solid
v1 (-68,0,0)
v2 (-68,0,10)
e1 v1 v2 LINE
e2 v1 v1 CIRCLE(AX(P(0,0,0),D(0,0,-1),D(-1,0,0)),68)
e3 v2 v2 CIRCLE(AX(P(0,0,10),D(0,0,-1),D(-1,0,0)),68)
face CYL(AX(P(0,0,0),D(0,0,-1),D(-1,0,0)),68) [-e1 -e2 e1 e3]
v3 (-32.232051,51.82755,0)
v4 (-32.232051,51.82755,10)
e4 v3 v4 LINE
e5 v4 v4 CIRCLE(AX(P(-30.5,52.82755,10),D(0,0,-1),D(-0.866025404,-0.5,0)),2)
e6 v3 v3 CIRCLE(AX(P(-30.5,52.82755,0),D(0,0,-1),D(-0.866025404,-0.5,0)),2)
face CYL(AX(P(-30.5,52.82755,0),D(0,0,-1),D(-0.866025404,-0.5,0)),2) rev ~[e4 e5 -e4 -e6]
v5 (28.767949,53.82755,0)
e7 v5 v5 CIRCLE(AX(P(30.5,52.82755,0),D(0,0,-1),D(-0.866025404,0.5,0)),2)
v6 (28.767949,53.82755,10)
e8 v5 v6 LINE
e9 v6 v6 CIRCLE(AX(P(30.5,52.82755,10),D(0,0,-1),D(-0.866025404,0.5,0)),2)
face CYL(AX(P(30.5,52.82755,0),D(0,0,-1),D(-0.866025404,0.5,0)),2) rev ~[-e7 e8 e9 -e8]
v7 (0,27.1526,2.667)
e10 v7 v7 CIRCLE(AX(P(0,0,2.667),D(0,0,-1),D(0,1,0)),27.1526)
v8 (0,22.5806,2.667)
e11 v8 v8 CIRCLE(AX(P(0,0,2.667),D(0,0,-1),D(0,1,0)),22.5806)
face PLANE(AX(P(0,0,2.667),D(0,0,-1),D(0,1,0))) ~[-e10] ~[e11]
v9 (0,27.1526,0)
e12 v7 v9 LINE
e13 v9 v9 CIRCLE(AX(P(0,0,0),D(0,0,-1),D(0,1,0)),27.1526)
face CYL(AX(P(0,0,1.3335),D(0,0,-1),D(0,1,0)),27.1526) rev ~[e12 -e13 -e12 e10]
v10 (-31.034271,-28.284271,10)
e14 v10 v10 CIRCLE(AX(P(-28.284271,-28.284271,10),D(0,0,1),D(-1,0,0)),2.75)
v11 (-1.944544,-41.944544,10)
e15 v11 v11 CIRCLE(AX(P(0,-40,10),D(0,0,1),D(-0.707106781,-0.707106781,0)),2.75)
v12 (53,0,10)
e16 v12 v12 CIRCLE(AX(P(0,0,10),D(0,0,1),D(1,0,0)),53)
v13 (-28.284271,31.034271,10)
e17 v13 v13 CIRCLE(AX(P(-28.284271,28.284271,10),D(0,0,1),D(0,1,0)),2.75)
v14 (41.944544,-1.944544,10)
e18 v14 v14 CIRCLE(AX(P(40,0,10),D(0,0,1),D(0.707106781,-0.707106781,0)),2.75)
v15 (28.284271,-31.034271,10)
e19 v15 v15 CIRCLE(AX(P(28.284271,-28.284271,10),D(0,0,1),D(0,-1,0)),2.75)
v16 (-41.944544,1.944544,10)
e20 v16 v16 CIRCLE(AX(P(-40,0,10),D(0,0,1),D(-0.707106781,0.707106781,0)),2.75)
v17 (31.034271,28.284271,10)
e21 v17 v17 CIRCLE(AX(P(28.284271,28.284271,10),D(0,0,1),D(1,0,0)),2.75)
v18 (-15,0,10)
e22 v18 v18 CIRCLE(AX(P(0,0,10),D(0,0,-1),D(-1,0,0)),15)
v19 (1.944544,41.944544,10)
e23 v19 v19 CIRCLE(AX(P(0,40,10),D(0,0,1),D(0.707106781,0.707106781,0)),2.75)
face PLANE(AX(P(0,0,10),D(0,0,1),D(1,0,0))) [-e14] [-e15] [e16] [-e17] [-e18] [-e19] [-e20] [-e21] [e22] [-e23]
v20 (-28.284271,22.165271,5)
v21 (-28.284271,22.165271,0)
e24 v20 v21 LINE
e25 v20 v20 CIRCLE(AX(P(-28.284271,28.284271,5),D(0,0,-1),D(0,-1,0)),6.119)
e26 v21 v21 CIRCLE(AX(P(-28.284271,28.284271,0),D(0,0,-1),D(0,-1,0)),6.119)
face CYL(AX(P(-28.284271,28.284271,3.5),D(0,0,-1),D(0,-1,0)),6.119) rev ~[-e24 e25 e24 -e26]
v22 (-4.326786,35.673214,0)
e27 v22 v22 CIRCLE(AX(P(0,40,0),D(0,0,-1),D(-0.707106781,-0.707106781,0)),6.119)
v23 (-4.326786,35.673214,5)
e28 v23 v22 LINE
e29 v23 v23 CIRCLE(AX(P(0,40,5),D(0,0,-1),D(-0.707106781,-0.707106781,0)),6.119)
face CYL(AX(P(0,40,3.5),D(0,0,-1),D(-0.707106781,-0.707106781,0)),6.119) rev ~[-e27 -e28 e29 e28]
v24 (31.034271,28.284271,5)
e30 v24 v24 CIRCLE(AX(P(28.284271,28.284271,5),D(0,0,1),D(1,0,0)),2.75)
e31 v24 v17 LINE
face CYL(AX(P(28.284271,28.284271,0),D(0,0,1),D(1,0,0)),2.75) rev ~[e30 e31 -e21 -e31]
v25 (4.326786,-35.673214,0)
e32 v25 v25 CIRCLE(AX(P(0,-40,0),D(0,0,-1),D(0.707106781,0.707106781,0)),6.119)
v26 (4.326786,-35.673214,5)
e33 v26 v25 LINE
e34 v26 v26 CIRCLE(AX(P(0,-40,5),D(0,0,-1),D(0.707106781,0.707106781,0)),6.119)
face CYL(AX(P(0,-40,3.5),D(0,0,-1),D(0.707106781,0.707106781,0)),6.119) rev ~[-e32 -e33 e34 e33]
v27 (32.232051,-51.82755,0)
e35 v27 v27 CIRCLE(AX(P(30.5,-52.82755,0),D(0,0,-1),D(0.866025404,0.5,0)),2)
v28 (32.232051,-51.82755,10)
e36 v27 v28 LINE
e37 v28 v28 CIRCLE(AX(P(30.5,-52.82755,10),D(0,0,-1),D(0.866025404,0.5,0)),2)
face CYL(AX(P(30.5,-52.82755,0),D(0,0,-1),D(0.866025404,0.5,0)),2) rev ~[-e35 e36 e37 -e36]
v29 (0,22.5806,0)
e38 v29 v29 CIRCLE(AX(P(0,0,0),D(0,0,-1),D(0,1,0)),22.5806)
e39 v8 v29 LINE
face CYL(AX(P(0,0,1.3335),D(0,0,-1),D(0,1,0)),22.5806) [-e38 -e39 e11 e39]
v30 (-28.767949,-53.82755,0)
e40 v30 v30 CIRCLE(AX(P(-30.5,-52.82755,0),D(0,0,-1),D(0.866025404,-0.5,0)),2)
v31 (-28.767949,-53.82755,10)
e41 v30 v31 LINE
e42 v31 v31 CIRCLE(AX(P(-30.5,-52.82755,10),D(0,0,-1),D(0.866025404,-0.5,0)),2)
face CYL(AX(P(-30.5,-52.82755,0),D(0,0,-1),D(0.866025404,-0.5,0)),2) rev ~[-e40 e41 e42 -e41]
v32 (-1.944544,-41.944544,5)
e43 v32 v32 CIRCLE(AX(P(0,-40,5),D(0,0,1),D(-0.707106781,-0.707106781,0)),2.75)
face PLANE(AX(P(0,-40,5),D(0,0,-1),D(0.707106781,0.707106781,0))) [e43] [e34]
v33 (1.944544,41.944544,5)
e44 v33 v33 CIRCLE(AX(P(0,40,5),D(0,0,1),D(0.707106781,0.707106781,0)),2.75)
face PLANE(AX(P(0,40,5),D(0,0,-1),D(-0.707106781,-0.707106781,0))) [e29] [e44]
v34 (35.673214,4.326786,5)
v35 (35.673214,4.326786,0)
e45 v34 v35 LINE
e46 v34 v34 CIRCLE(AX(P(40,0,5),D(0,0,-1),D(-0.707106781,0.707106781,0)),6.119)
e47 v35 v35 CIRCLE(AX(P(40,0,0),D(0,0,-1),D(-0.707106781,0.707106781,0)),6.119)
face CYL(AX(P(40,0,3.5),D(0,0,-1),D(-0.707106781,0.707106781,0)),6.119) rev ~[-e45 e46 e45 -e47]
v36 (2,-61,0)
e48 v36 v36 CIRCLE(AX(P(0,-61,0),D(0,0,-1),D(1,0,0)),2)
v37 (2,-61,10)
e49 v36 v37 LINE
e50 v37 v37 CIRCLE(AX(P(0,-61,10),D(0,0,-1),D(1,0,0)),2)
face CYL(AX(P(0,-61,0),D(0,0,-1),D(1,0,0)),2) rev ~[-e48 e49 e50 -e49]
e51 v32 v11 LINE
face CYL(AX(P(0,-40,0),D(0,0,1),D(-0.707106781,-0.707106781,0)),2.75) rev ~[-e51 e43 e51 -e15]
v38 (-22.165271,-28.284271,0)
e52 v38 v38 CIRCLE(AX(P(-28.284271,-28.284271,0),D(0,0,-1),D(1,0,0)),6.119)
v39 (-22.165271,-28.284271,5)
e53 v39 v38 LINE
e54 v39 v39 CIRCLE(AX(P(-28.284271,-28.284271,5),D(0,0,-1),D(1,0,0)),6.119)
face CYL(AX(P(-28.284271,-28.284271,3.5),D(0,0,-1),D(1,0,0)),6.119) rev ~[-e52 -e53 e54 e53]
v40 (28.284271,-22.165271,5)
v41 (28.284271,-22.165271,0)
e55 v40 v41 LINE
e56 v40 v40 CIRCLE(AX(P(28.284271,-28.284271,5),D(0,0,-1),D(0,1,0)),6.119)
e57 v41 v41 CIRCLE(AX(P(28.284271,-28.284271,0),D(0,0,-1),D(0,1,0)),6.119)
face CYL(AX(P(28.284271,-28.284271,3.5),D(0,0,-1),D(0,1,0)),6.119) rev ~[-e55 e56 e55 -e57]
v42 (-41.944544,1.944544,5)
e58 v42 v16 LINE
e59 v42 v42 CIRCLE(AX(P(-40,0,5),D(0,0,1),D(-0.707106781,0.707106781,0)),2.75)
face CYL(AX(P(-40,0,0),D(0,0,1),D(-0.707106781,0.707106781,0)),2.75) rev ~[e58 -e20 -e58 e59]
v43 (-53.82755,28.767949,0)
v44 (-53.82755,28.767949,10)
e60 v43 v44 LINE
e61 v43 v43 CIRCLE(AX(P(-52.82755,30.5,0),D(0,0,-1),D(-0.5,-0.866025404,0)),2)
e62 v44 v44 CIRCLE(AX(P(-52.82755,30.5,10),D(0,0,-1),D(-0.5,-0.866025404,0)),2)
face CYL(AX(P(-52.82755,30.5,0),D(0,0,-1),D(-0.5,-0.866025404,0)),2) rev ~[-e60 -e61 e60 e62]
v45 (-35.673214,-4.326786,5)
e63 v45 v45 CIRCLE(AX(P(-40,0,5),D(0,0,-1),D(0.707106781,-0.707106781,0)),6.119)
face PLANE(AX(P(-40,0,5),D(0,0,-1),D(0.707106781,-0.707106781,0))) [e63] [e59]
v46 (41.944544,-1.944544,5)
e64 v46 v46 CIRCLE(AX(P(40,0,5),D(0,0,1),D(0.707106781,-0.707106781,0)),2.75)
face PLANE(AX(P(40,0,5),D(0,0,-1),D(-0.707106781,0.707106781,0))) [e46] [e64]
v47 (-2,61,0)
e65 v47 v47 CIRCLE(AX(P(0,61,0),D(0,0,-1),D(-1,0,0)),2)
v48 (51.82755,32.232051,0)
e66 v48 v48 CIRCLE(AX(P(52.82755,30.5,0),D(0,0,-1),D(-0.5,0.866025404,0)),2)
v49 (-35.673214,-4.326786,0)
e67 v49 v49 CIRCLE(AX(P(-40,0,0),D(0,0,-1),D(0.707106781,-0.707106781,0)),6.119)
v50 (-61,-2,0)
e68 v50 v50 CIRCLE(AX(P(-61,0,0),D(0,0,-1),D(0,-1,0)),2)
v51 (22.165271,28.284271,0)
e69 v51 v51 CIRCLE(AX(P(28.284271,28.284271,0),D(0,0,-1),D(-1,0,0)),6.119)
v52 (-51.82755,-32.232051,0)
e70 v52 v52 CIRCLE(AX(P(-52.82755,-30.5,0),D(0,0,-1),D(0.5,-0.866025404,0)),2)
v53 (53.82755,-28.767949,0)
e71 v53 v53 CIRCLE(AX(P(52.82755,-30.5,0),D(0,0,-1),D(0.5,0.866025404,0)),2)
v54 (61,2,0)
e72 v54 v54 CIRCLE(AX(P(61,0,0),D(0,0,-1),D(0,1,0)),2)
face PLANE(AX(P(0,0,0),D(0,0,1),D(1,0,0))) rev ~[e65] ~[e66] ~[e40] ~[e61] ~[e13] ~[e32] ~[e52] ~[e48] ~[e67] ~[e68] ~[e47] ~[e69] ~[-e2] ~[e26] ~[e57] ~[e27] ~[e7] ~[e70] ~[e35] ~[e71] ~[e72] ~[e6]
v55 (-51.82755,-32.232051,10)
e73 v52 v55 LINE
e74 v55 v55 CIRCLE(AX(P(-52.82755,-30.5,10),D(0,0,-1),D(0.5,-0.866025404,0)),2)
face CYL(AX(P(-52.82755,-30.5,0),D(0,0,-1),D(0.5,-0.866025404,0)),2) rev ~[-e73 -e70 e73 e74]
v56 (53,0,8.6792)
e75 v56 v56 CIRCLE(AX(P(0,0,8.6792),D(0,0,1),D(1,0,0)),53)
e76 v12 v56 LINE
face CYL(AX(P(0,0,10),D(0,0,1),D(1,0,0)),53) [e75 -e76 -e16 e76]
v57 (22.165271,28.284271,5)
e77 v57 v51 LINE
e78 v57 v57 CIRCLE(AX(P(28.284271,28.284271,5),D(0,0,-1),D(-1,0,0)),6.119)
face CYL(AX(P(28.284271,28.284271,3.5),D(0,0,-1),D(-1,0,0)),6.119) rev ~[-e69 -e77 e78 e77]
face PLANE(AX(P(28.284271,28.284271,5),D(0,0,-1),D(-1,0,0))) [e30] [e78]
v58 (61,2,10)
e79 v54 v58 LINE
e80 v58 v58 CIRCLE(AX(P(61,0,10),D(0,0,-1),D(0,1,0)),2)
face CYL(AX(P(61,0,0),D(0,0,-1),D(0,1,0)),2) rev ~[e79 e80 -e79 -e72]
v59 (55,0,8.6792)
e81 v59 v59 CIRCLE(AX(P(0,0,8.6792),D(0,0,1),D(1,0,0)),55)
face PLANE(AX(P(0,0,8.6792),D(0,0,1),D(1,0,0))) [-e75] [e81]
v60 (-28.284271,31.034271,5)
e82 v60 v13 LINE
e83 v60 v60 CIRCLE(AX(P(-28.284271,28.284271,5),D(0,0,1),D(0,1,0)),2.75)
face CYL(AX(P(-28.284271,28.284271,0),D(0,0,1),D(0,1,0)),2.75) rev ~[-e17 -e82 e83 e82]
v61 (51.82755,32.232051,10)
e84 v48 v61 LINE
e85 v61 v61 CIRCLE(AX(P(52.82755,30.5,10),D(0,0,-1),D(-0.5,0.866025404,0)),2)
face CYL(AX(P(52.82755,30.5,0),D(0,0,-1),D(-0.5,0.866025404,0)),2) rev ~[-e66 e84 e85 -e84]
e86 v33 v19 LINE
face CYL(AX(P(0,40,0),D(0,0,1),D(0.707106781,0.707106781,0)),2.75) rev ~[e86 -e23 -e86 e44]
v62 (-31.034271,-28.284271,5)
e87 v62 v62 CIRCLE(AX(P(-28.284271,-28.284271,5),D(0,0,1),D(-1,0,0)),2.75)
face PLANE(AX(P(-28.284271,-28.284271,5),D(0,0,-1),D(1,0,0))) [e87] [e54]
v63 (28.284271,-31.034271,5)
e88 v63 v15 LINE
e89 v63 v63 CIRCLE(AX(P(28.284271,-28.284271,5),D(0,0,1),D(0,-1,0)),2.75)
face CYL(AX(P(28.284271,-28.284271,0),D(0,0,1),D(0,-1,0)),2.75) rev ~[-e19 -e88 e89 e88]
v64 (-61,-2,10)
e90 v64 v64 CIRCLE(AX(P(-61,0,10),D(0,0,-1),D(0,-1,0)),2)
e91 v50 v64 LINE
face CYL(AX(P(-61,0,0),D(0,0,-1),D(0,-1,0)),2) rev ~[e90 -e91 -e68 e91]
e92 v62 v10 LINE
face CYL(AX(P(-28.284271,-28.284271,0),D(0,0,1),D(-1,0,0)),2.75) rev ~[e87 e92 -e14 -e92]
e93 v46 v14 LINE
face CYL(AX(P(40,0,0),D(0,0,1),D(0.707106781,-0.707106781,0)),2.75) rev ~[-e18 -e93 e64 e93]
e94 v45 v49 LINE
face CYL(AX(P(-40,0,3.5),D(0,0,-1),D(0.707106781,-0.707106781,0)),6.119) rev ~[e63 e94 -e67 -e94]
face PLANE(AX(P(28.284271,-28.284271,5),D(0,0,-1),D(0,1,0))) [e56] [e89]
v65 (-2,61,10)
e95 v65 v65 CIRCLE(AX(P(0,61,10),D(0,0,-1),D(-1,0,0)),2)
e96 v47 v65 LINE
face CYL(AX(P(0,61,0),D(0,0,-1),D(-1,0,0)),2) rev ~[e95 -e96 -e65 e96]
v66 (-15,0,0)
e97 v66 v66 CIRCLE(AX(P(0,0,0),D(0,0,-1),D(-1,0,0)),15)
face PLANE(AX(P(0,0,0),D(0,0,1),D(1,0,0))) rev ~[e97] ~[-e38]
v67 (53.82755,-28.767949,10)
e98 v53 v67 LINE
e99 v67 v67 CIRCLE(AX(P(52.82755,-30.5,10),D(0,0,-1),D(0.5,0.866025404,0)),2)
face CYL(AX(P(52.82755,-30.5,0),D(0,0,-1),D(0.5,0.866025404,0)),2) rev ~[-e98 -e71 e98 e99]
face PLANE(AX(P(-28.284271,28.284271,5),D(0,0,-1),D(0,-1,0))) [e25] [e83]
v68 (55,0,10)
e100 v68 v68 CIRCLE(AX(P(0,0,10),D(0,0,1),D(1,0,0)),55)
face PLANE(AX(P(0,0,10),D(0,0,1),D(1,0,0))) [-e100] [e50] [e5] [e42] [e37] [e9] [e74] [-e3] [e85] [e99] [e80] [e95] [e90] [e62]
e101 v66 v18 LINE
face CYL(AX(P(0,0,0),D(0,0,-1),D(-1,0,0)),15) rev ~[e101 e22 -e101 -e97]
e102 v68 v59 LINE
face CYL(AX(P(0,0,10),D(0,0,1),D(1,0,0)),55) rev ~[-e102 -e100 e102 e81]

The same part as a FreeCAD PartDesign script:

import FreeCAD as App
import Part
import Sketcher

doc = App.newDocument("Part")
body = doc.addObject("PartDesign::Body", "Body")

sketch1 = body.newObject("Sketcher::SketchObject", "Sketch")
sketch1.AttachmentSupport = (doc.getObject("XY_Plane"), [""])
sketch1.MapMode = "FlatFace"
sketch1.addGeometry(Part.Circle(App.Vector(0, 0, 0), App.Vector(0, 0, 1), 75), False)
sketch1.addConstraint(Sketcher.Constraint("Coincident", 0, 3, -1, 1))
sketch1.addConstraint(Sketcher.Constraint("Diameter", 0, 150.0))
pad1 = body.newObject("PartDesign::Pad", "Pad")
pad1.Profile = sketch1
pad1.Length = 10

sketch2 = body.newObject("Sketcher::SketchObject", "Sketch001")
sketch2.AttachmentSupport = (doc.getObject("XY_Plane"), [""])
sketch2.MapMode = "FlatFace"
sketch2.AttachmentOffset = App.Placement(App.Vector(0, 0, 10), App.Rotation())
sketch2.addGeometry(Part.Circle(App.Vector(0, 0, 0), App.Vector(0, 0, 1), 4.5), False)
sketch2.addConstraint(Sketcher.Constraint("Coincident", 0, 3, -1, 1))
sketch2.addConstraint(Sketcher.Constraint("Diameter", 0, 9.0))
pocket1 = body.newObject("PartDesign::Pocket", "Pocket")
pocket1.Profile = sketch2
pocket1.Length = 10

sketch3 = body.newObject("Sketcher::SketchObject", "Sketch002")
sketch3.AttachmentSupport = (doc.getObject("YZ_Plane"), [""])
sketch3.MapMode = "FlatFace"
sketch3.addGeometry(Part.LineSegment(App.Vector(27.2, 2.7, 0), App.Vector(22.6, 2.7, 0)), False)
sketch3.addGeometry(Part.LineSegment(App.Vector(22.6, 2.7, 0), App.Vector(22.6, 0, 0)), False)
sketch3.addGeometry(Part.LineSegment(App.Vector(22.6, 0, 0), App.Vector(27.2, 0, 0)), False)
sketch3.addGeometry(Part.LineSegment(App.Vector(27.2, 0, 0), App.Vector(27.2, 2.7, 0)), False)
sketch3.addConstraint(Sketcher.Constraint("Coincident", 0, 2, 1, 1))
sketch3.addConstraint(Sketcher.Constraint("Coincident", 1, 2, 2, 1))
sketch3.addConstraint(Sketcher.Constraint("Coincident", 2, 2, 3, 1))
sketch3.addConstraint(Sketcher.Constraint("Coincident", 3, 2, 0, 1))
sketch3.addConstraint(Sketcher.Constraint("Horizontal", 0))
sketch3.addConstraint(Sketcher.Constraint("Vertical", 1))
sketch3.addConstraint(Sketcher.Constraint("Horizontal", 2))
sketch3.addConstraint(Sketcher.Constraint("Vertical", 3))
sketch3.addConstraint(Sketcher.Constraint("PointOnObject", 1, 2, -1))
sketch3.addConstraint(Sketcher.Constraint("DistanceX", 0, 2, 0, 1, 4.572))
sketch3.addConstraint(Sketcher.Constraint("DistanceY", 1, 2, 1, 1, 2.667))
sketch3.addConstraint(Sketcher.Constraint("DistanceX", -1, 1, 0, 2, 22.5806))
groove = body.newObject("PartDesign::Groove", "Groove")
groove.Profile = sketch3
groove.ReferenceAxis = (sketch3, ["V_Axis"])
groove.Angle = 360

sketch4 = body.newObject("Sketcher::SketchObject", "Sketch003")
sketch4.AttachmentSupport = (doc.getObject("XY_Plane"), [""])
sketch4.MapMode = "FlatFace"
sketch4.AttachmentOffset = App.Placement(App.Vector(0, 0, 10), App.Rotation())
sketch4.addGeometry(Part.Circle(App.Vector(0, 0, 0), App.Vector(0, 0, 1), 55), False)
sketch4.addGeometry(Part.Circle(App.Vector(0, 0, 0), App.Vector(0, 0, 1), 53), False)
sketch4.addConstraint(Sketcher.Constraint("Coincident", 0, 3, -1, 1))
sketch4.addConstraint(Sketcher.Constraint("Coincident", 1, 3, -1, 1))
sketch4.addConstraint(Sketcher.Constraint("Diameter", 0, 110.0))
sketch4.addConstraint(Sketcher.Constraint("Diameter", 1, 106.0))
pocket2 = body.newObject("PartDesign::Pocket", "Pocket001")
pocket2.Profile = sketch4
pocket2.Length = 1.3208

sketch5 = body.newObject("Sketcher::SketchObject", "Sketch004")
sketch5.AttachmentSupport = (doc.getObject("XY_Plane"), [""])
sketch5.MapMode = "FlatFace"
sketch5.addGeometry(Part.Circle(App.Vector(0, 61, 0), App.Vector(0, 0, 1), 2), False)
sketch5.addConstraint(Sketcher.Constraint("PointOnObject", 0, 3, -2))
sketch5.addConstraint(Sketcher.Constraint("Diameter", 0, 4.0))
sketch5.addConstraint(Sketcher.Constraint("DistanceY", -1, 1, 0, 3, 61.0))
pocket3 = body.newObject("PartDesign::Pocket", "Pocket002")
pocket3.Profile = sketch5
pocket3.Type = "ThroughAll"
pocket3.Reversed = True

sketch6 = body.newObject("Sketcher::SketchObject", "Sketch005")
sketch6.AttachmentSupport = (doc.getObject("XY_Plane"), [""])
sketch6.MapMode = "FlatFace"
sketch6.addGeometry(Part.Circle(App.Vector(28.3, 28.3, 0), App.Vector(0, 0, 1), 2.8), False)
sketch6.addConstraint(Sketcher.Constraint("Diameter", 0, 5.5))
sketch6.addConstraint(Sketcher.Constraint("DistanceX", -1, 1, 0, 3, 28.284271))
sketch6.addConstraint(Sketcher.Constraint("DistanceY", -1, 1, 0, 3, 28.284271))
doc.recompute()
hole = body.newObject("PartDesign::Hole", "Hole")
hole.Profile = sketch6
hole.ThreadType = "None"
hole.Diameter = 5.5
hole.DepthType = "ThroughAll"
hole.HoleCutType = "Counterbore"
hole.HoleCutDiameter = 12.238
hole.HoleCutDepth = 3.5
hole.Reversed = True

sketch7 = body.newObject("Sketcher::SketchObject", "Sketch006")
sketch7.AttachmentSupport = (doc.getObject("XY_Plane"), [""])
sketch7.MapMode = "FlatFace"
sketch7.addGeometry(Part.Circle(App.Vector(0, 0, 0), App.Vector(0, 0, 1), 75), False)
sketch7.addGeometry(Part.Circle(App.Vector(0, 0, 0), App.Vector(0, 0, 1), 68), False)
sketch7.addConstraint(Sketcher.Constraint("Coincident", 0, 3, -1, 1))
sketch7.addConstraint(Sketcher.Constraint("Coincident", 1, 3, -1, 1))
sketch7.addConstraint(Sketcher.Constraint("Diameter", 0, 150.0))
sketch7.addConstraint(Sketcher.Constraint("Diameter", 1, 136.0))
pocket4 = body.newObject("PartDesign::Pocket", "Pocket003")
pocket4.Profile = sketch7
pocket4.Length = 10
pocket4.Reversed = True
doc.recompute()

polarpattern = body.newObject("PartDesign::PolarPattern", "PolarPattern")
polarpattern.Originals = [pocket3]
polarpattern.Axis = (doc.getObject("Z_Axis"), [""])
polarpattern.Angle = 360
polarpattern.Occurrences = 12
body.Tip = polarpattern
doc.recompute()

polarpattern2 = body.newObject("PartDesign::PolarPattern", "PolarPattern001")
polarpattern2.Originals = [hole]
polarpattern2.Axis = (doc.getObject("Z_Axis"), [""])
polarpattern2.Angle = 360
polarpattern2.Occurrences = 8
body.Tip = polarpattern2

sketch8 = body.newObject("Sketcher::SketchObject", "Sketch007")
sketch8.AttachmentSupport = (doc.getObject("XY_Plane"), [""])
sketch8.MapMode = "FlatFace"
sketch8.addGeometry(Part.Circle(App.Vector(28, 28, 0), App.Vector(0, 0, 1), 6), False)
sketch8.addConstraint(Sketcher.Constraint("Diameter", 0, 12.238))
sketch8.addConstraint(Sketcher.Constraint("DistanceX", -1, 1, 0, 3, 28.284271))
sketch8.addConstraint(Sketcher.Constraint("DistanceY", -1, 1, 0, 3, 28.284271))
pocket5 = body.newObject("PartDesign::Pocket", "Pocket004")
pocket5.Profile = sketch8
pocket5.Length = 5
pocket5.Reversed = True
doc.recompute()

polarpattern3 = body.newObject("PartDesign::PolarPattern", "PolarPattern002")
polarpattern3.Originals = [pocket5]
polarpattern3.Axis = (doc.getObject("Z_Axis"), [""])
polarpattern3.Angle = 360
polarpattern3.Occurrences = 8
body.Tip = polarpattern3

sketch9 = body.newObject("Sketcher::SketchObject", "Sketch008")
sketch9.AttachmentSupport = (doc.getObject("XY_Plane"), [""])
sketch9.MapMode = "FlatFace"
sketch9.addGeometry(Part.Circle(App.Vector(0, 0, 0), App.Vector(0, 0, 1), 15), False)
sketch9.addConstraint(Sketcher.Constraint("Coincident", 0, 3, -1, 1))
sketch9.addConstraint(Sketcher.Constraint("Diameter", 0, 30.0))
pocket6 = body.newObject("PartDesign::Pocket", "Pocket005")
pocket6.Profile = sketch9
pocket6.Length = 10
pocket6.Reversed = True

doc.recompute()
